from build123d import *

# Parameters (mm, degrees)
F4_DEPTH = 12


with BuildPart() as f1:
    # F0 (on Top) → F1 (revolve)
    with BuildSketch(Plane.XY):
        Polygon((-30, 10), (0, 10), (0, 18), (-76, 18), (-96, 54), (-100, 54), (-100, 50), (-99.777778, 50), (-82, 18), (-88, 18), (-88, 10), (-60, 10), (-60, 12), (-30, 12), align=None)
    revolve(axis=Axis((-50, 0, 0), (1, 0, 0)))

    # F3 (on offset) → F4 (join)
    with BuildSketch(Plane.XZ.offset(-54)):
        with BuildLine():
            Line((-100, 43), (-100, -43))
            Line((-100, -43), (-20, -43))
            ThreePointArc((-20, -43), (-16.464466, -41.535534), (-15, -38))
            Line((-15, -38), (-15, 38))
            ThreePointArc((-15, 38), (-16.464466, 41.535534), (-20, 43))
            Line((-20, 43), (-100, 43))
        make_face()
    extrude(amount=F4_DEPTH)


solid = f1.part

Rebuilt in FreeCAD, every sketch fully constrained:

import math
import FreeCAD as App
import Part
import Sketcher

V = App.Vector
Q = App.Units.Quantity


def add_polygon(sketch, points):
    """Adds a closed chain of lines whose ends are joined by coincident constraints."""
    first, n = sketch.GeometryCount, len(points)
    for a, b in zip(points, points[1:] + points[:1]):
        sketch.addGeometry(Part.LineSegment(App.Vector(*a, 0), App.Vector(*b, 0)), False)
    for i in range(n):
        sketch.addConstraint(Sketcher.Constraint("Coincident", first + i, 2, first + (i + 1) % n, 1))

doc = App.newDocument("Part")
params = doc.addObject("Spreadsheet::Sheet", "Params")
for row, (alias, value) in enumerate([
    ("sketch1_width", "30 mm"),
    ("sketch1_width2", "76 mm"),
    ("sketch1_width3", "4 mm"),
    ("sketch1_width4", "6 mm"),
    ("sketch1_width5", "28 mm"),
    ("revolution_angle", "360 deg"),
    ("sketch2_radius", "5 mm"),
    ("sketch2_width", "80 mm"),
    ("sketch2_height", "86 mm"),
    ("pad1_length", "12 mm"),
], start=1):
    params.set(f"A{row}", alias)
    params.set(f"B{row}", "=" + value)
    params.setAlias(f"B{row}", alias)

body = doc.addObject("PartDesign::Body", "Body")

# Sketch on XY plane
sketch1 = body.newObject("Sketcher::SketchObject", "Sketch")
sketch1.AttachmentSupport = (doc.getObject("XY_Plane"), [""])
sketch1.MapMode = "FlatFace"
add_polygon(sketch1, [(-30, 10), (0, 10), (0, 18), (-76, 18), (-96, 54), (-100, 54), (-100, 50), (-99.78, 50), (-82, 18), (-88, 18), (-88, 10), (-60, 10), (-60, 12), (-30, 12)])  # lines 0-13
sketch1.addConstraint([
    Sketcher.Constraint("Horizontal", 0),
    Sketcher.Constraint("Vertical", 1),
    Sketcher.Constraint("Horizontal", 2),
    Sketcher.Constraint("Horizontal", 4),
    Sketcher.Constraint("Vertical", 5),
    Sketcher.Constraint("Horizontal", 6),
    Sketcher.Constraint("Horizontal", 8),
    Sketcher.Constraint("Vertical", 9),
    Sketcher.Constraint("Horizontal", 10),
    Sketcher.Constraint("Vertical", 11),
    Sketcher.Constraint("Horizontal", 12),
    Sketcher.Constraint("Vertical", 13),
    Sketcher.Constraint("PointOnObject", 0, 2, -2),
    Sketcher.Constraint("Parallel", 3, 7),
    Sketcher.Constraint("Horizontal", 2, 2, 7, 2),
    Sketcher.Constraint("Horizontal", 0, 2, 9, 2),
    Sketcher.Constraint("Equal", 0, 12),
    Sketcher.Constraint("Equal", 4, 5),
    Sketcher.Constraint("DistanceX", 0, 1, 0, 2, Q("30 mm")),
    Sketcher.Constraint("DistanceX", 2, 2, 2, 1, Q("76 mm")),
    Sketcher.Constraint("DistanceX", 4, 2, 4, 1, Q("4 mm")),
    Sketcher.Constraint("DistanceX", 8, 2, 8, 1, Q("6 mm")),
    Sketcher.Constraint("DistanceX", 10, 1, 10, 2, Q("28 mm")),
    Sketcher.Constraint("DistanceY", 1, 1, 1, 2, Q("8 mm")),
    Sketcher.Constraint("DistanceY", 11, 1, 11, 2, Q("2 mm")),
    Sketcher.Constraint("DistanceY", -1, 1, 0, 2, Q("10 mm")),
    Sketcher.Constraint("DistanceX", 3, 2, -1, 1, Q("96 mm")),
    Sketcher.Constraint("DistanceY", -1, 1, 3, 2, Q("54 mm")),
])
sketch1.setExpression("Constraints[32]", "Params.sketch1_width")
sketch1.setExpression("Constraints[33]", "Params.sketch1_width2")
sketch1.setExpression("Constraints[34]", "Params.sketch1_width3")
sketch1.setExpression("Constraints[35]", "Params.sketch1_width4")
sketch1.setExpression("Constraints[36]", "Params.sketch1_width5")
revolution = body.newObject("PartDesign::Revolution", "Revolution")
revolution.Profile = sketch1
revolution.ReferenceAxis = (sketch1, ["H_Axis"])
revolution.setExpression("Angle", "Params.revolution_angle")

# Sketch on XZ plane
sketch2 = body.newObject("Sketcher::SketchObject", "Sketch001")
sketch2.AttachmentSupport = (doc.getObject("XZ_Plane"), [""])
sketch2.MapMode = "FlatFace"
sketch2.AttachmentOffset = App.Placement(V(0, 0, -54), App.Rotation())
sketch2.addGeometry([
    Part.LineSegment(V(-100, 43, 0), V(-100, -43, 0)),  # 0
    Part.LineSegment(V(-100, -43, 0), V(-20, -43, 0)),  # 1
    Part.ArcOfCircle(Part.Circle(V(-20, -38, 0), V(0, 0, 1), 5), math.radians(-90), math.radians(0)),  # 2
    Part.LineSegment(V(-15, -38, 0), V(-15, 38, 0)),  # 3
    Part.ArcOfCircle(Part.Circle(V(-20, 38, 0), V(0, 0, 1), 5), math.radians(0), math.radians(90)),  # 4
    Part.LineSegment(V(-20, 43, 0), V(-100, 43, 0)),  # 5
], False)
sketch2.addConstraint([
    Sketcher.Constraint("Coincident", 0, 2, 1, 1),
    Sketcher.Constraint("Tangent", 1, 2, 2, 1),
    Sketcher.Constraint("Tangent", 2, 2, 3, 1),
    Sketcher.Constraint("Tangent", 3, 2, 4, 1),
    Sketcher.Constraint("Tangent", 4, 2, 5, 1),
    Sketcher.Constraint("Coincident", 5, 2, 0, 1),
    Sketcher.Constraint("Vertical", 0),
    Sketcher.Constraint("Horizontal", 1),
    Sketcher.Constraint("Vertical", 3),
    Sketcher.Constraint("Horizontal", 5),
    Sketcher.Constraint("Equal", 2, 4),
    Sketcher.Constraint("Radius", 2, Q("5 mm")),
    Sketcher.Constraint("DistanceX", 1, 1, 1, 2, Q("80 mm")),
    Sketcher.Constraint("DistanceY", 0, 2, 0, 1, Q("86 mm")),
    Sketcher.Constraint("DistanceX", 2, 3, -1, 1, Q("20 mm")),
    Sketcher.Constraint("DistanceY", 2, 3, -1, 1, Q("38 mm")),
])
sketch2.setExpression("Constraints[11]", "Params.sketch2_radius")
sketch2.setExpression("Constraints[12]", "Params.sketch2_width")
sketch2.setExpression("Constraints[13]", "Params.sketch2_height")
pad1 = body.newObject("PartDesign::Pad", "Pad")
pad1.Profile = sketch2
pad1.setExpression("Length", "Params.pad1_length")

doc.recompute()
